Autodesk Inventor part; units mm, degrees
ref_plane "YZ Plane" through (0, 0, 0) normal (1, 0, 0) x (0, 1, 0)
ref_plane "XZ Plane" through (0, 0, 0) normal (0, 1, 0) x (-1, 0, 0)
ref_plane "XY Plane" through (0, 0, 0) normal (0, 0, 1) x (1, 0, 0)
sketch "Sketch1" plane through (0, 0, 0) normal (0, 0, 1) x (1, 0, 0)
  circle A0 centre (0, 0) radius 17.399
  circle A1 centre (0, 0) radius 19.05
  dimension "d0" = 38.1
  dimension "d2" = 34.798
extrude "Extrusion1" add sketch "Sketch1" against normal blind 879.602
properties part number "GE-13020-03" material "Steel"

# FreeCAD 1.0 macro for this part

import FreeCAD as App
import Part
import Sketcher
Q = App.Units.Quantity

doc = App.newDocument("Part")
params = doc.addObject("Spreadsheet::Sheet", "Params")
for row, (alias, value) in enumerate([
    ("sketch1_diameter", "1.5 in"),
    ("sketch1_diameter2", "1.37 in"),
    ("pad1_length", "34.63 in"),
], start=1):
    params.set(f"A{row}", alias)
    params.set(f"B{row}", "=" + value)
    params.setAlias(f"B{row}", alias)

body = doc.addObject("PartDesign::Body", "Body")

# Sketch on XY plane
sketch1 = body.newObject("Sketcher::SketchObject", "Sketch")
sketch1.AttachmentSupport = (doc.getObject("XY_Plane"), [""])
sketch1.MapMode = "FlatFace"
sketch1.addGeometry(Part.Circle(App.Vector(0, 0, 0), App.Vector(0, 0, 1), 19), False)
sketch1.addGeometry(Part.Circle(App.Vector(0, 0, 0), App.Vector(0, 0, 1), 17), False)
sketch1.addConstraint(Sketcher.Constraint("Coincident", 0, 3, -1, 1))
sketch1.addConstraint(Sketcher.Constraint("Coincident", 1, 3, -1, 1))
sketch1.addConstraint(Sketcher.Constraint("Diameter", 0, Q("1.5 in")))
sketch1.addConstraint(Sketcher.Constraint("Diameter", 1, Q("1.37 in")))
sketch1.setExpression("Constraints[2]", "Params.sketch1_diameter")
sketch1.setExpression("Constraints[3]", "Params.sketch1_diameter2")
pad1 = body.newObject("PartDesign::Pad", "Pad")
pad1.Profile = sketch1
pad1.setExpression("Length", "Params.pad1_length")
pad1.Reversed = True

doc.recompute()
